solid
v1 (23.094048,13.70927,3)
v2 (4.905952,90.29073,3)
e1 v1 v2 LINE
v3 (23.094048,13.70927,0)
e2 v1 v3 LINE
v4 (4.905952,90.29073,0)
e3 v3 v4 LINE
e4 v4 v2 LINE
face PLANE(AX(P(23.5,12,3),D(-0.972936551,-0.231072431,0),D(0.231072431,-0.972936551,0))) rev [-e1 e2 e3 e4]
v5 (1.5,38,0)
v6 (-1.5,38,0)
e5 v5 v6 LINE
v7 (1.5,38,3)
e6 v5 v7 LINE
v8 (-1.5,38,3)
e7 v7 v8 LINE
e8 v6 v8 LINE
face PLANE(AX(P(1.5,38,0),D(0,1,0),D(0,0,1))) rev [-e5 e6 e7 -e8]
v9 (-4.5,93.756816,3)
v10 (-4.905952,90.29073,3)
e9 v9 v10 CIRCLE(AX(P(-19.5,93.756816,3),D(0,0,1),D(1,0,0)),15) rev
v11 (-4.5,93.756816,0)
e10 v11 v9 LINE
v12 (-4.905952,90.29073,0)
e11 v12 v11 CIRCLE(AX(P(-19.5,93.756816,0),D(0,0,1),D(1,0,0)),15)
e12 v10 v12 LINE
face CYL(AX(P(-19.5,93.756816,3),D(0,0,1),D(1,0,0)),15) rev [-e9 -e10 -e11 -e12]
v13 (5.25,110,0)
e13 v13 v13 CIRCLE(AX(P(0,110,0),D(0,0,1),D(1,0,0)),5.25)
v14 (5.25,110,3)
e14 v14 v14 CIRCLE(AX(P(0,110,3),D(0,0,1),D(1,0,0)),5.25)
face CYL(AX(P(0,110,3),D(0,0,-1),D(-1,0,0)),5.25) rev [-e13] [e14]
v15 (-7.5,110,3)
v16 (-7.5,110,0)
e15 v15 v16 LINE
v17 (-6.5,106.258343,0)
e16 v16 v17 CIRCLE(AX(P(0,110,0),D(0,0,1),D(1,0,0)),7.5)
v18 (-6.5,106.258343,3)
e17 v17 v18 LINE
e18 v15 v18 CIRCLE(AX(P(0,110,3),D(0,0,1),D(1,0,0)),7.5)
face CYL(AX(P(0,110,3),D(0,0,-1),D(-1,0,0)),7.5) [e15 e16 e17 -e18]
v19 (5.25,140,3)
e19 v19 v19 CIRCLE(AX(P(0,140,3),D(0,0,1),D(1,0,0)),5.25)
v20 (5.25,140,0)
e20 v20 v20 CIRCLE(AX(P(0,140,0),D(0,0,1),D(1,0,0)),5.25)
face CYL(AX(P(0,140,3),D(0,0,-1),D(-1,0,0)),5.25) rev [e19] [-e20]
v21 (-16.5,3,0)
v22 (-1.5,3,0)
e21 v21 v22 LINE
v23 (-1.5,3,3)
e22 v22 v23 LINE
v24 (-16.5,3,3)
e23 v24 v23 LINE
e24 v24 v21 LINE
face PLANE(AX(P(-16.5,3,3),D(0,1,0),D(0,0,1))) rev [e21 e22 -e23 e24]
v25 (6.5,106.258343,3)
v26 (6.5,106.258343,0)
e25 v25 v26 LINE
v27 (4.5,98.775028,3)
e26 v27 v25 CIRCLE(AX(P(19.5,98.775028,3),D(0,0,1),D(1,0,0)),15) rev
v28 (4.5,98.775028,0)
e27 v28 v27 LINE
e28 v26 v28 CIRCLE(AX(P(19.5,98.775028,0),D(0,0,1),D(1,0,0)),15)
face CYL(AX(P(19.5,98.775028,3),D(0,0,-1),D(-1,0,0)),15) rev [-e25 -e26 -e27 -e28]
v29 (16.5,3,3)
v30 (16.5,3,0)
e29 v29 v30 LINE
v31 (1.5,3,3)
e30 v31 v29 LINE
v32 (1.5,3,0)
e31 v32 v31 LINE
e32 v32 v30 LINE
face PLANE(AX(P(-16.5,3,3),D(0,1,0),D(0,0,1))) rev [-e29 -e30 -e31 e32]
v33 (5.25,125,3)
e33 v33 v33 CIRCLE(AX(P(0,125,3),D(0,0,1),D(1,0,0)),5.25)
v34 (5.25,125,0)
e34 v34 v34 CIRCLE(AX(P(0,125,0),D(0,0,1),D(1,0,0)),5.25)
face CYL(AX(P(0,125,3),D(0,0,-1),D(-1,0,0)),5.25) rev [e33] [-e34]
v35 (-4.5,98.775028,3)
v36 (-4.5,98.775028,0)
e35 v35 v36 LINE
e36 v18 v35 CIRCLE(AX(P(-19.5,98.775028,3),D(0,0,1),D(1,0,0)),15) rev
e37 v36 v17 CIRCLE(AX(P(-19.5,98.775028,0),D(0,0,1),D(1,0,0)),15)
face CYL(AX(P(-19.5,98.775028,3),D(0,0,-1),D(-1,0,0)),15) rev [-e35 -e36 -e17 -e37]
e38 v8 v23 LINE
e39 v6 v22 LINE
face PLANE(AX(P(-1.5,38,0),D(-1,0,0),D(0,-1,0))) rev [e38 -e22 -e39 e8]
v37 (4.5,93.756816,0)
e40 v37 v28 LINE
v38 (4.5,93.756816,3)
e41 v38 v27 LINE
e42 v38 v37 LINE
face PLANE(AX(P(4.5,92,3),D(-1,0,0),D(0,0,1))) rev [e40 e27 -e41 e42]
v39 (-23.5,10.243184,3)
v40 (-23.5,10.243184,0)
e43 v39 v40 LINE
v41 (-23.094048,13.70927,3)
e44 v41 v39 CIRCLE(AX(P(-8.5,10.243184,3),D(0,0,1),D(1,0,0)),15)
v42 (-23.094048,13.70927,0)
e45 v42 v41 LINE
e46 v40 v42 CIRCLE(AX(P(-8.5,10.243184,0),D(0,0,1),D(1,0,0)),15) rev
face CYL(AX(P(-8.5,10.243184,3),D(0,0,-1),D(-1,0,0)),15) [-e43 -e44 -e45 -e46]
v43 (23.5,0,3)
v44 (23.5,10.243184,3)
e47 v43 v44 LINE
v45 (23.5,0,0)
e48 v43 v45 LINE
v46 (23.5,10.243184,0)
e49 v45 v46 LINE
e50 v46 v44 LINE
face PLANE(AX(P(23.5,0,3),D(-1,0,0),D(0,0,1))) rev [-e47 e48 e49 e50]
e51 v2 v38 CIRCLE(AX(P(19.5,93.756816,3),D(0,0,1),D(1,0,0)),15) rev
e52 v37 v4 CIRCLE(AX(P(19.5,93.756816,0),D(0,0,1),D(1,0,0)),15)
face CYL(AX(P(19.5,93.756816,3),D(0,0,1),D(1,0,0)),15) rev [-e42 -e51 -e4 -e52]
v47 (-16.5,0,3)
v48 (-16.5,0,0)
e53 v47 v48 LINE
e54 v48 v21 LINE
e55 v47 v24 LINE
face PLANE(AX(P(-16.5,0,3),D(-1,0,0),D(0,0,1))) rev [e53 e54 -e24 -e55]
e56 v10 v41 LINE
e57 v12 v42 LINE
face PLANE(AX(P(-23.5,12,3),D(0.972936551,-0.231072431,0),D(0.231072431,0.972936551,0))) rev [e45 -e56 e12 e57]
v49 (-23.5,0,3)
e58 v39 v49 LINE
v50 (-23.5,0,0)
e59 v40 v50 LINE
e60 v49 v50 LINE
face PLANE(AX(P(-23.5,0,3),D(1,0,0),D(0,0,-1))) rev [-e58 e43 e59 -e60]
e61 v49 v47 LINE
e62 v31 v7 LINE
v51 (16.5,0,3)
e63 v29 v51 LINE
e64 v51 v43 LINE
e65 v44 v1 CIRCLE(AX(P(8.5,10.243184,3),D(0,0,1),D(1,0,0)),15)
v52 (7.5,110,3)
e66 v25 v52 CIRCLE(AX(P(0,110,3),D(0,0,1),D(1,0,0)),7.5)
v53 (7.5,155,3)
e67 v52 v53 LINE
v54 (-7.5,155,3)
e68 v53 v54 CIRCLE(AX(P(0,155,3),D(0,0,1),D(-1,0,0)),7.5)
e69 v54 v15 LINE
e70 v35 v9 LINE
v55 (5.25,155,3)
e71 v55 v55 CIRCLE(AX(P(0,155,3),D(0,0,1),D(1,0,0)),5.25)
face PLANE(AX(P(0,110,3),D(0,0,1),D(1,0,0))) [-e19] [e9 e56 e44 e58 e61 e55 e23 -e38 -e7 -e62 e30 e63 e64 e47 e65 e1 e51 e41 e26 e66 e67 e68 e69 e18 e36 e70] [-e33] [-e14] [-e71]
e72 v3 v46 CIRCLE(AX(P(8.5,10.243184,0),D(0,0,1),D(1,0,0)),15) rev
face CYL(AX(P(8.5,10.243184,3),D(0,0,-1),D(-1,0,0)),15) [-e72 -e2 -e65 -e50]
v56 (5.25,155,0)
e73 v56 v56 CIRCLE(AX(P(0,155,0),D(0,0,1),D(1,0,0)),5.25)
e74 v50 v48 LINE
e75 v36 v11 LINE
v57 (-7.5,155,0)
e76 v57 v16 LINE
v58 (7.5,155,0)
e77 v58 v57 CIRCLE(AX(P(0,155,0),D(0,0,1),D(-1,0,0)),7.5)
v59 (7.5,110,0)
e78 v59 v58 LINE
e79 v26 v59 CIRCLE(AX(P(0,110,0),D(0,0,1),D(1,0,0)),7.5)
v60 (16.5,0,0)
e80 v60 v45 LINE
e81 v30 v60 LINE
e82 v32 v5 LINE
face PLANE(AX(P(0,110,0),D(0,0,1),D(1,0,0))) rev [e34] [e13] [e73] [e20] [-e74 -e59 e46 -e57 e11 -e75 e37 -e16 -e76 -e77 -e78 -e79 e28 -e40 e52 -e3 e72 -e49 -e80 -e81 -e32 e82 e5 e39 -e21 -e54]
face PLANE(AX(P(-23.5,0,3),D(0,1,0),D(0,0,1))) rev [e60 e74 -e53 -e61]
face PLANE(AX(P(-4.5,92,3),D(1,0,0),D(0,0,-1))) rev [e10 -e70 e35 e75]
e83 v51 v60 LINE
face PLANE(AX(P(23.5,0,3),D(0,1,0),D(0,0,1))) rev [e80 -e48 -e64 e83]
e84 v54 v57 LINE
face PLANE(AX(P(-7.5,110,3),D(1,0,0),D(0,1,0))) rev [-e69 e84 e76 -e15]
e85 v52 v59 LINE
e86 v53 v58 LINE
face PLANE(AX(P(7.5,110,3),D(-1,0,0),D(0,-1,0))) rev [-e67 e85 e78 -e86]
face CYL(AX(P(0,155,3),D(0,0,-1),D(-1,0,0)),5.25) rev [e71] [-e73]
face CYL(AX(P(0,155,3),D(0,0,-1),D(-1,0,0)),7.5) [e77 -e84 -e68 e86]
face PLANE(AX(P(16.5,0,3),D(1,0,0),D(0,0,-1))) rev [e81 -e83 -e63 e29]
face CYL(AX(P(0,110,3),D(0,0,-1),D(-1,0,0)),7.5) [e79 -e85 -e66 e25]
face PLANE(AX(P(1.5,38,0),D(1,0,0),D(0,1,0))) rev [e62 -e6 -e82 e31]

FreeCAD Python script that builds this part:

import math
import FreeCAD as App
import Part
import Sketcher
from FreeCAD import Vector
Q = App.Units.Quantity


def edges_at(feature, points):
    """Names of the edges that pass closest to the given points."""
    edges = feature.Shape.Edges
    near = lambda p: min(range(len(edges)), key=lambda i: edges[i].distToShape(Part.Vertex(*p))[0])
    return sorted({f"Edge{near(p) + 1}" for p in points})

doc = App.newDocument("Part")
body = doc.addObject("PartDesign::Body", "Body")

# Sketch on XY plane
sketch1 = doc.addObject("Sketcher::SketchObject", "Sketch")
body.addObject(sketch1)
sketch1.AttachmentSupport = (doc.XY_Plane, [""])
sketch1.MapMode = "FlatFace"
sketch1.addGeometry([
    Part.LineSegment(Vector(-23.5, 0, 0), Vector(-16.5, 0, 0)),  # 0
    Part.LineSegment(Vector(-16.5, 0, 0), Vector(-16.5, 3, 0)),  # 1
    Part.LineSegment(Vector(-16.5, 3, 0), Vector(16.5, 3, 0)),  # 2
    Part.LineSegment(Vector(16.5, 3, 0), Vector(16.5, 0, 0)),  # 3
    Part.LineSegment(Vector(16.5, 0, 0), Vector(23.5, 0, 0)),  # 4
    Part.LineSegment(Vector(23.5, 0, 0), Vector(23.5, 12, 0)),  # 5
    Part.LineSegment(Vector(23.5, 12, 0), Vector(4.5, 92, 0)),  # 6
    Part.LineSegment(Vector(4.5, 92, 0), Vector(4.5, 104, 0)),  # 7
    Part.ArcOfCircle(Part.Circle(Vector(0, 110, 0), Vector(0, 0, 1), 7.5), math.radians(-53), math.radians(0)),  # 8
    Part.LineSegment(Vector(7.5, 110, 0), Vector(7.5, 155, 0)),  # 9
    Part.ArcOfCircle(Part.Circle(Vector(0, 155, 0), Vector(0, 0, 1), 7.5), math.radians(0), math.radians(180)),  # 10
    Part.LineSegment(Vector(-7.5, 155, 0), Vector(-7.5, 110, 0)),  # 11
    Part.ArcOfCircle(Part.Circle(Vector(0, 110, 0), Vector(0, 0, 1), 7.5), math.radians(-180), math.radians(-127)),  # 12
    Part.LineSegment(Vector(-4.5, 104, 0), Vector(-4.5, 92, 0)),  # 13
    Part.LineSegment(Vector(-4.5, 92, 0), Vector(-23.5, 12, 0)),  # 14
    Part.LineSegment(Vector(-23.5, 12, 0), Vector(-23.5, 0, 0)),  # 15
    Part.Circle(Vector(0, 110, 0), Vector(0, 0, 1), 5.2),  # 16
    Part.Circle(Vector(0, 125, 0), Vector(0, 0, 1), 5.2),  # 17
    Part.Circle(Vector(0, 140, 0), Vector(0, 0, 1), 5.2),  # 18
    Part.Circle(Vector(0, 155, 0), Vector(0, 0, 1), 5.2),  # 19
], False)
sketch1.addConstraint([
    Sketcher.Constraint("Coincident", 0, 2, 1, 1),
    Sketcher.Constraint("Coincident", 1, 2, 2, 1),
    Sketcher.Constraint("Coincident", 2, 2, 3, 1),
    Sketcher.Constraint("Coincident", 3, 2, 4, 1),
    Sketcher.Constraint("Coincident", 4, 2, 5, 1),
    Sketcher.Constraint("Coincident", 5, 2, 6, 1),
    Sketcher.Constraint("Coincident", 6, 2, 7, 1),
    Sketcher.Constraint("Coincident", 7, 2, 8, 1),
    Sketcher.Constraint("Tangent", 8, 2, 9, 1),
    Sketcher.Constraint("Tangent", 9, 2, 10, 1),
    Sketcher.Constraint("Tangent", 10, 2, 11, 1),
    Sketcher.Constraint("Tangent", 11, 2, 12, 1),
    Sketcher.Constraint("Coincident", 12, 2, 13, 1),
    Sketcher.Constraint("Coincident", 13, 2, 14, 1),
    Sketcher.Constraint("Coincident", 14, 2, 15, 1),
    Sketcher.Constraint("Coincident", 15, 2, 0, 1),
    Sketcher.Constraint("Horizontal", 0),
    Sketcher.Constraint("Vertical", 1),
    Sketcher.Constraint("Horizontal", 2),
    Sketcher.Constraint("Vertical", 3),
    Sketcher.Constraint("Horizontal", 4),
    Sketcher.Constraint("Vertical", 5),
    Sketcher.Constraint("Vertical", 7),
    Sketcher.Constraint("Vertical", 9),
    Sketcher.Constraint("Vertical", 11),
    Sketcher.Constraint("Vertical", 13),
    Sketcher.Constraint("Vertical", 15),
    Sketcher.Constraint("Coincident", 12, 3, 8, 3),
    Sketcher.Constraint("Coincident", 16, 3, 8, 3),
    Sketcher.Constraint("Coincident", 19, 3, 10, 3),
    Sketcher.Constraint("Equal", 8, 10),
    Sketcher.Constraint("Equal", 16, 17),
    Sketcher.Constraint("Equal", 17, 18),
    Sketcher.Constraint("Equal", 18, 19),
    Sketcher.Constraint("Symmetric", 0, 2, 3, 2, -1, 1),
    Sketcher.Constraint("Symmetric", 7, 2, 12, 2, -2),
    Sketcher.Constraint("Symmetric", 5, 2, 14, 2, -2),
    Sketcher.Constraint("PointOnObject", 17, 3, -2),
    Sketcher.Constraint("PointOnObject", 18, 3, -2),
    Sketcher.Constraint("PointOnObject", 0, 2, -1),
    Sketcher.Constraint("Horizontal", 6, 2, 13, 2),
    Sketcher.Constraint("Equal", 5, 7),
    Sketcher.Constraint("Diameter", 16, Q("10.5 mm")),
    Sketcher.Constraint("Radius", 8, Q("7.5 mm")),
    Sketcher.Constraint("DistanceX", 0, 1, 0, 2, Q("7 mm")),
    Sketcher.Constraint("DistanceX", 2, 1, 2, 2, Q("33 mm")),
    Sketcher.Constraint("DistanceY", 1, 1, 1, 2, Q("3 mm")),
    Sketcher.Constraint("DistanceY", 5, 1, 5, 2, Q("12 mm")),
    Sketcher.Constraint("DistanceY", 9, 1, 9, 2, Q("45 mm")),
    Sketcher.Constraint("DistanceY", -1, 1, 8, 3, Q("110 mm")),
    Sketcher.Constraint("DistanceY", -1, 1, 17, 3, Q("125 mm")),
    Sketcher.Constraint("DistanceY", -1, 1, 18, 3, Q("140 mm")),
    Sketcher.Constraint("DistanceY", -1, 1, 6, 2, Q("92 mm")),
])
pad1 = doc.addObject("PartDesign::Pad", "Pad")
body.addObject(pad1)
pad1.Profile = sketch1
pad1.Length = 3
doc.recompute()

fillet = doc.addObject("PartDesign::Fillet", "Fillet")
body.addObject(fillet)
fillet.Base = (pad1, edges_at(pad1, [
    (-23.5, 12, 1.5),
    (-4.5, 92, 1.5),
    (-4.5, 104, 1.5),
    (4.5, 104, 1.5),
    (4.5, 92, 1.5),
    (23.5, 12, 1.5),
]))
fillet.Radius = 15

# Sketch on XY plane
sketch2 = doc.addObject("Sketcher::SketchObject", "Sketch001")
body.addObject(sketch2)
sketch2.AttachmentSupport = (doc.XY_Plane, [""])
sketch2.MapMode = "FlatFace"
sketch2.AttachmentOffset = App.Placement(Vector(0, 0, 3), App.Rotation())
sketch2.addGeometry([
    Part.LineSegment(Vector(-1.5, 38, 0), Vector(-1.5, 3, 0)),
    Part.LineSegment(Vector(-1.5, 3, 0), Vector(1.5, 3, 0)),
    Part.LineSegment(Vector(1.5, 3, 0), Vector(1.5, 38, 0)),
    Part.LineSegment(Vector(1.5, 38, 0), Vector(-1.5, 38, 0)),
], False)
sketch2.addConstraint([
    Sketcher.Constraint("Coincident", 0, 2, 1, 1),
    Sketcher.Constraint("Coincident", 1, 2, 2, 1),
    Sketcher.Constraint("Coincident", 2, 2, 3, 1),
    Sketcher.Constraint("Coincident", 3, 2, 0, 1),
    Sketcher.Constraint("Vertical", 0),
    Sketcher.Constraint("Horizontal", 1),
    Sketcher.Constraint("Vertical", 2),
    Sketcher.Constraint("Horizontal", 3),
    Sketcher.Constraint("DistanceX", 1, 1, 1, 2, Q("3 mm")),
    Sketcher.Constraint("DistanceY", 0, 2, 0, 1, Q("35 mm")),
    Sketcher.Constraint("DistanceY", -1, 1, 0, 2, Q("3 mm")),
    Sketcher.Constraint("DistanceX", 0, 2, -1, 1, Q("1.5 mm")),
])
pocket1 = doc.addObject("PartDesign::Pocket", "Pocket")
body.addObject(pocket1)
pocket1.Profile = sketch2
pocket1.Length = 3

doc.recompute()
